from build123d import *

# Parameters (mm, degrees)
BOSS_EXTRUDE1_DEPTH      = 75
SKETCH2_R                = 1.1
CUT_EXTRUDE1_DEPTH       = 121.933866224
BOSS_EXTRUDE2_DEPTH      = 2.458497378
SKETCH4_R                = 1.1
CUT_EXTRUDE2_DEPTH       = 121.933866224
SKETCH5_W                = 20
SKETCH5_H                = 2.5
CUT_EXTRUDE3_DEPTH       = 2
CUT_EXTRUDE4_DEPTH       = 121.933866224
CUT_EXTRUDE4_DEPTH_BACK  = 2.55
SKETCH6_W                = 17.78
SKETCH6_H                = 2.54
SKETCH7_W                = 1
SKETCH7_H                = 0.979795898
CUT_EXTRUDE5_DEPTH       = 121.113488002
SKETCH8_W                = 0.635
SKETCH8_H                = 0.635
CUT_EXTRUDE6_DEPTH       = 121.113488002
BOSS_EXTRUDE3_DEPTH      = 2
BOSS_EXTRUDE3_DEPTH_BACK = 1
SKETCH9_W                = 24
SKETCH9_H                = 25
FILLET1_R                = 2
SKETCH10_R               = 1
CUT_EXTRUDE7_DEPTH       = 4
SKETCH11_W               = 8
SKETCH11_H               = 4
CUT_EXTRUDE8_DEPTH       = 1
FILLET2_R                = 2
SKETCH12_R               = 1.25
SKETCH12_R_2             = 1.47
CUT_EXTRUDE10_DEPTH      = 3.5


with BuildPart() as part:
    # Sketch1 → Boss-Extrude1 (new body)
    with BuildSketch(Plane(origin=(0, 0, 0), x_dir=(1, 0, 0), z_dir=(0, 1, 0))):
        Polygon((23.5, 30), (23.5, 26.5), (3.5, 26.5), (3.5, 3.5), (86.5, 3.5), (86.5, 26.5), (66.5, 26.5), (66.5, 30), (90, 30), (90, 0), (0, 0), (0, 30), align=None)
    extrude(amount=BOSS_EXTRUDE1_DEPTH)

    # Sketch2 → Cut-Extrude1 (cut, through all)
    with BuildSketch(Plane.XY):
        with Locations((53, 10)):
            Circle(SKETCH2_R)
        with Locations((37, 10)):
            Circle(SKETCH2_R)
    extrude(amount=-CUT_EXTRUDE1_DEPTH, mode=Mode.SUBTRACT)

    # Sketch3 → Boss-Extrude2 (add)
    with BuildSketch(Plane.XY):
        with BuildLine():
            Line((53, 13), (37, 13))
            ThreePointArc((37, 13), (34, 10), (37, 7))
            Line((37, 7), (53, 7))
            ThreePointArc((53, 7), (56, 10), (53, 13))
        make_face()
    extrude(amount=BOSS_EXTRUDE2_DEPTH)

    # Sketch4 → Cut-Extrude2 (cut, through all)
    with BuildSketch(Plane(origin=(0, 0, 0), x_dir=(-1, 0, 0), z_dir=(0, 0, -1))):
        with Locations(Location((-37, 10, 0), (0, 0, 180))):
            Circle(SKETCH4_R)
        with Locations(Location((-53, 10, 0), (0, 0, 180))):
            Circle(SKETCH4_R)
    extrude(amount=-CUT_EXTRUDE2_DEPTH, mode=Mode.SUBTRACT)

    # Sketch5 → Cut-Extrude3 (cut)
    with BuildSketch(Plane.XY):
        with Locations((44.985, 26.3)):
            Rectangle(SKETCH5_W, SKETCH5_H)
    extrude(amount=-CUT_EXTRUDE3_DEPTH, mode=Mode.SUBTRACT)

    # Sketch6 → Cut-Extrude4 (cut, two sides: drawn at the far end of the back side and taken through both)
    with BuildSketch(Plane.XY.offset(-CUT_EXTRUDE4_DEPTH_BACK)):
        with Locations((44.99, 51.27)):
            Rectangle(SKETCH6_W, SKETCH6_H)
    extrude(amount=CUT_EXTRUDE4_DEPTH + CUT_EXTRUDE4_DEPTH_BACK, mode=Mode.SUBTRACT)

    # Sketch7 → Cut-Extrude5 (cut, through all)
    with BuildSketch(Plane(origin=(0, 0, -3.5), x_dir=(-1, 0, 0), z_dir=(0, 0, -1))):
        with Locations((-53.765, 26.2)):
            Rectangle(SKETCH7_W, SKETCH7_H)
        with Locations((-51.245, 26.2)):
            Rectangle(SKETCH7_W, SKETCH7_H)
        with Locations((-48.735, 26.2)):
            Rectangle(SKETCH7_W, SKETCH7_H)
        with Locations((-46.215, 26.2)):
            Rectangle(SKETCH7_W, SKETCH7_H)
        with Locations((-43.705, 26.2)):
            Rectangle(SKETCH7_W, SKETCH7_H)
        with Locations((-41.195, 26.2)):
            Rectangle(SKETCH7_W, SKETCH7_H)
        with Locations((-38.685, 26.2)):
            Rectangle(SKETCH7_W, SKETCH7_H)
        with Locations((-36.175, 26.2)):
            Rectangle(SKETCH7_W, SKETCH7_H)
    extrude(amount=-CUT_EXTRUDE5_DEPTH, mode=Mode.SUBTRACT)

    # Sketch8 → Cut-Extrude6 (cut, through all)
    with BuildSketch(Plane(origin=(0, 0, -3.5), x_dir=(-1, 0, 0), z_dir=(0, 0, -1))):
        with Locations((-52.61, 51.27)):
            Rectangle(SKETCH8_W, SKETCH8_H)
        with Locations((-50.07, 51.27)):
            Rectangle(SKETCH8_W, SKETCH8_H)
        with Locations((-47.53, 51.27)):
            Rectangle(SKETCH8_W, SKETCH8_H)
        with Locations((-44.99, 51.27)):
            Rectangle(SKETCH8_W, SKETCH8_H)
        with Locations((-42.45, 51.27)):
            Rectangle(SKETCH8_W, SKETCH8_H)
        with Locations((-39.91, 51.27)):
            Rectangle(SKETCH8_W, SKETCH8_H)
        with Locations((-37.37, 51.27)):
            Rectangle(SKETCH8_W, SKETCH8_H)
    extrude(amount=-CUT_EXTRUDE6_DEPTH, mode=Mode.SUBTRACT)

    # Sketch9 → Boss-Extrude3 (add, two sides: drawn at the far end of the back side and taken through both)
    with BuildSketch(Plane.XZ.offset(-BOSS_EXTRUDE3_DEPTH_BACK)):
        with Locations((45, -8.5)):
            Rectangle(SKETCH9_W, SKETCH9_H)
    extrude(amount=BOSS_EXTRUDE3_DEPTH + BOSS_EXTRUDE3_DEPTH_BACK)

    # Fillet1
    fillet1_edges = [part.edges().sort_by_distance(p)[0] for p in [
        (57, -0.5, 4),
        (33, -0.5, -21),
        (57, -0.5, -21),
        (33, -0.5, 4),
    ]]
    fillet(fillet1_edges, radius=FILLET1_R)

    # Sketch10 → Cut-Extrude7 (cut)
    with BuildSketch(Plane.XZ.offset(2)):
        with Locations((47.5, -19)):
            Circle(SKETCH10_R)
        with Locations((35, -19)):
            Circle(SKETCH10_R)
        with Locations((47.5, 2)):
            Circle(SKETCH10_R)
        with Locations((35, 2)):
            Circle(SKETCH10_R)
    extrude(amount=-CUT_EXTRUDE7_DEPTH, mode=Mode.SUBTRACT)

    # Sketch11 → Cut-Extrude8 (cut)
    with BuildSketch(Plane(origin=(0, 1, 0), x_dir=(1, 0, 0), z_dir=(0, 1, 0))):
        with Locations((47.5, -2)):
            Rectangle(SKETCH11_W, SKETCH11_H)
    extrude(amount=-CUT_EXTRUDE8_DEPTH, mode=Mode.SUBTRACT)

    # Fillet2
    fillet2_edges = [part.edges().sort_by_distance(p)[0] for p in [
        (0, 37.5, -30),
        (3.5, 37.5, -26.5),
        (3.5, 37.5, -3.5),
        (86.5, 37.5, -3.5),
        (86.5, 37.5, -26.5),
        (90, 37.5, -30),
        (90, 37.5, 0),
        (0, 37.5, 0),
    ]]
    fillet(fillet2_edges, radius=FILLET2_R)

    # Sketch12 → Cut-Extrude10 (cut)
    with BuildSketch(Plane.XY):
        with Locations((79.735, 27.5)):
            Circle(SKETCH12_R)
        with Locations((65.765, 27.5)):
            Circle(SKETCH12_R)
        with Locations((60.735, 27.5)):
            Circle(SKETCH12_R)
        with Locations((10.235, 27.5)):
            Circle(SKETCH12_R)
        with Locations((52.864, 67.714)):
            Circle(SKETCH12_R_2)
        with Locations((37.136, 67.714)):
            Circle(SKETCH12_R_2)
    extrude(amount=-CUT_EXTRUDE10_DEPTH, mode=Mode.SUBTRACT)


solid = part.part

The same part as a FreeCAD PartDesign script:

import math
import FreeCAD as App
import Part
import Sketcher
from FreeCAD import Vector
Q = App.Units.Quantity


def edges_at(feature, points):
    """Names of the edges that pass closest to the given points."""
    edges = feature.Shape.Edges
    near = lambda p: min(range(len(edges)), key=lambda i: edges[i].distToShape(Part.Vertex(*p))[0])
    return sorted({f"Edge{near(p) + 1}" for p in points})


def add_polygon(sketch, points):
    """Adds a closed chain of lines whose ends are joined by coincident constraints."""
    first, n = sketch.GeometryCount, len(points)
    for a, b in zip(points, points[1:] + points[:1]):
        sketch.addGeometry(Part.LineSegment(App.Vector(*a, 0), App.Vector(*b, 0)), False)
    for i in range(n):
        sketch.addConstraint(Sketcher.Constraint("Coincident", first + i, 2, first + (i + 1) % n, 1))

doc = App.newDocument("Part")
body = doc.addObject("PartDesign::Body", "Body")

# Sketch on XZ plane
sketch1 = body.newObject("Sketcher::SketchObject", "Sketch")
sketch1.AttachmentSupport = (doc.getObject("XZ_Plane"), [""])
sketch1.MapMode = "FlatFace"
add_polygon(sketch1, [(23.5, -26.5), (23.5, -30), (0, -30), (0, 0), (90, 0), (90, -30), (66.5, -30), (66.5, -26.5), (86.5, -26.5), (86.5, -3.5), (3.5, -3.5), (3.5, -26.5)])  # lines 0-11
sketch1.addConstraint(Sketcher.Constraint("Vertical", 0))
sketch1.addConstraint(Sketcher.Constraint("Horizontal", 1))
sketch1.addConstraint(Sketcher.Constraint("Vertical", 2))
sketch1.addConstraint(Sketcher.Constraint("Horizontal", 3))
sketch1.addConstraint(Sketcher.Constraint("Vertical", 4))
sketch1.addConstraint(Sketcher.Constraint("Horizontal", 5))
sketch1.addConstraint(Sketcher.Constraint("Vertical", 6))
sketch1.addConstraint(Sketcher.Constraint("Horizontal", 7))
sketch1.addConstraint(Sketcher.Constraint("Vertical", 8))
sketch1.addConstraint(Sketcher.Constraint("Horizontal", 9))
sketch1.addConstraint(Sketcher.Constraint("Vertical", 10))
sketch1.addConstraint(Sketcher.Constraint("Horizontal", 11))
sketch1.addConstraint(Sketcher.Constraint("Coincident", 2, 2, -1, 1))
sketch1.addConstraint(Sketcher.Constraint("Horizontal", 1, 2, 4, 2))
sketch1.addConstraint(Sketcher.Constraint("Horizontal", 7, 2, 10, 2))
sketch1.addConstraint(Sketcher.Constraint("Equal", 1, 5))
sketch1.addConstraint(Sketcher.Constraint("Equal", 7, 11))
sketch1.addConstraint(Sketcher.Constraint("DistanceX", 3, 1, 3, 2, Q("90 mm")))
sketch1.addConstraint(Sketcher.Constraint("DistanceX", 7, 1, 7, 2, Q("20 mm")))
sketch1.addConstraint(Sketcher.Constraint("DistanceX", 9, 2, 9, 1, Q("83 mm")))
sketch1.addConstraint(Sketcher.Constraint("DistanceY", 2, 1, 2, 2, Q("30 mm")))
sketch1.addConstraint(Sketcher.Constraint("DistanceY", 8, 1, 8, 2, Q("23 mm")))
sketch1.addConstraint(Sketcher.Constraint("DistanceY", 0, 2, 0, 1, Q("3.5 mm")))
pad1 = body.newObject("PartDesign::Pad", "Pad")
pad1.Profile = sketch1
pad1.Length = 75
pad1.Reversed = True

# Sketch on XY plane
sketch2 = body.newObject("Sketcher::SketchObject", "Sketch001")
sketch2.AttachmentSupport = (doc.getObject("XY_Plane"), [""])
sketch2.MapMode = "FlatFace"
sketch2.addGeometry(Part.Circle(Vector(53, 10, 0), Vector(0, 0, 1), 1.1), False)
sketch2.addGeometry(Part.Circle(Vector(37, 10, 0), Vector(0, 0, 1), 1.1), False)
sketch2.addConstraint(Sketcher.Constraint("Equal", 0, 1))
sketch2.addConstraint(Sketcher.Constraint("Horizontal", 0, 3, 1, 3))
sketch2.addConstraint(Sketcher.Constraint("Diameter", 0, Q("2.2 mm")))
sketch2.addConstraint(Sketcher.Constraint("DistanceX", -1, 1, 0, 3, Q("53 mm")))
sketch2.addConstraint(Sketcher.Constraint("DistanceY", -1, 1, 0, 3, Q("10 mm")))
sketch2.addConstraint(Sketcher.Constraint("DistanceX", -1, 1, 1, 3, Q("37 mm")))
pocket1 = body.newObject("PartDesign::Pocket", "Pocket")
pocket1.Profile = sketch2
pocket1.Type = "ThroughAll"

# Sketch on XY plane
sketch3 = body.newObject("Sketcher::SketchObject", "Sketch002")
sketch3.AttachmentSupport = (doc.getObject("XY_Plane"), [""])
sketch3.MapMode = "FlatFace"
sketch3.addGeometry(Part.LineSegment(Vector(53, 13, 0), Vector(37, 13, 0)), False)
sketch3.addGeometry(Part.ArcOfCircle(Part.Circle(Vector(37, 10, 0), Vector(0, 0, 1), 3), math.radians(90), math.radians(270)), False)
sketch3.addGeometry(Part.LineSegment(Vector(37, 7, 0), Vector(53, 7, 0)), False)
sketch3.addGeometry(Part.ArcOfCircle(Part.Circle(Vector(53, 10, 0), Vector(0, 0, 1), 3), math.radians(-90), math.radians(90)), False)
sketch3.addConstraint(Sketcher.Constraint("Tangent", 0, 2, 1, 1))
sketch3.addConstraint(Sketcher.Constraint("Tangent", 1, 2, 2, 1))
sketch3.addConstraint(Sketcher.Constraint("Tangent", 2, 2, 3, 1))
sketch3.addConstraint(Sketcher.Constraint("Tangent", 3, 2, 0, 1))
sketch3.addConstraint(Sketcher.Constraint("Horizontal", 0))
sketch3.addConstraint(Sketcher.Constraint("Horizontal", 2))
sketch3.addConstraint(Sketcher.Constraint("Radius", 1, Q("3 mm")))
sketch3.addConstraint(Sketcher.Constraint("DistanceX", 0, 2, 0, 1, Q("16 mm")))
sketch3.addConstraint(Sketcher.Constraint("DistanceX", -1, 1, 1, 3, Q("37 mm")))
sketch3.addConstraint(Sketcher.Constraint("DistanceY", -1, 1, 1, 3, Q("10 mm")))
pad2 = body.newObject("PartDesign::Pad", "Pad001")
pad2.Profile = sketch3
pad2.Length = 2.458497

# Sketch on XY plane
sketch4 = body.newObject("Sketcher::SketchObject", "Sketch003")
sketch4.AttachmentSupport = (doc.getObject("XY_Plane"), [""])
sketch4.MapMode = "FlatFace"
sketch4.addGeometry(Part.Circle(Vector(37, 10, 0), Vector(0, 0, 1), 1.1), False)
sketch4.addGeometry(Part.Circle(Vector(53, 10, 0), Vector(0, 0, 1), 1.1), False)
sketch4.addConstraint(Sketcher.Constraint("Equal", 0, 1))
sketch4.addConstraint(Sketcher.Constraint("Horizontal", 0, 3, 1, 3))
sketch4.addConstraint(Sketcher.Constraint("Diameter", 0, Q("2.2 mm")))
sketch4.addConstraint(Sketcher.Constraint("DistanceX", -1, 1, 0, 3, Q("37 mm")))
sketch4.addConstraint(Sketcher.Constraint("DistanceY", -1, 1, 0, 3, Q("10 mm")))
sketch4.addConstraint(Sketcher.Constraint("DistanceX", -1, 1, 1, 3, Q("53 mm")))
pocket2 = body.newObject("PartDesign::Pocket", "Pocket001")
pocket2.Profile = sketch4
pocket2.Type = "ThroughAll"
pocket2.Reversed = True

# Sketch on XY plane
sketch5 = body.newObject("Sketcher::SketchObject", "Sketch004")
sketch5.AttachmentSupport = (doc.getObject("XY_Plane"), [""])
sketch5.MapMode = "FlatFace"
add_polygon(sketch5, [(35, 27.6), (35, 25.1), (55, 25.1), (55, 27.6)])  # lines 0-3
sketch5.addConstraint(Sketcher.Constraint("Vertical", 0))
sketch5.addConstraint(Sketcher.Constraint("Horizontal", 1))
sketch5.addConstraint(Sketcher.Constraint("Vertical", 2))
sketch5.addConstraint(Sketcher.Constraint("Horizontal", 3))
sketch5.addConstraint(Sketcher.Constraint("DistanceX", 1, 1, 1, 2, Q("20 mm")))
sketch5.addConstraint(Sketcher.Constraint("DistanceY", 0, 2, 0, 1, Q("2.5 mm")))
sketch5.addConstraint(Sketcher.Constraint("DistanceY", -1, 1, 0, 2, Q("25.05 mm")))
sketch5.addConstraint(Sketcher.Constraint("DistanceX", -1, 1, 0, 2, Q("34.985 mm")))
pocket3 = body.newObject("PartDesign::Pocket", "Pocket002")
pocket3.Profile = sketch5
pocket3.Length = 2

# Sketch on XY plane
sketch6 = body.newObject("Sketcher::SketchObject", "Sketch005")
sketch6.AttachmentSupport = (doc.getObject("XY_Plane"), [""])
sketch6.MapMode = "FlatFace"
add_polygon(sketch6, [(36.1, 52.5), (36.1, 50), (53.9, 50), (53.9, 52.5)])  # lines 0-3
sketch6.addConstraint(Sketcher.Constraint("Vertical", 0))
sketch6.addConstraint(Sketcher.Constraint("Horizontal", 1))
sketch6.addConstraint(Sketcher.Constraint("Vertical", 2))
sketch6.addConstraint(Sketcher.Constraint("Horizontal", 3))
sketch6.addConstraint(Sketcher.Constraint("DistanceY", -1, 1, 0, 2, Q("50 mm")))
sketch6.addConstraint(Sketcher.Constraint("DistanceX", 1, 1, 1, 2, Q("17.78 mm")))
sketch6.addConstraint(Sketcher.Constraint("DistanceY", 0, 2, 0, 1, Q("2.54 mm")))
sketch6.addConstraint(Sketcher.Constraint("DistanceX", -1, 1, 0, 2, Q("36.1 mm")))
pocket4 = body.newObject("PartDesign::Pocket", "Pocket003")
pocket4.Profile = sketch6
pocket4.Type = "TwoLengths"
pocket4.Length = 121.933866
pocket4.Length2 = 2.55
pocket4.Reversed = True

# Sketch on XY plane
sketch7 = body.newObject("Sketcher::SketchObject", "Sketch006")
sketch7.AttachmentSupport = (doc.getObject("XY_Plane"), [""])
sketch7.MapMode = "FlatFace"
sketch7.AttachmentOffset = App.Placement(Vector(0, 0, -3.5), App.Rotation())
add_polygon(sketch7, [(54.3, 26.7), (54.3, 25.7), (53.3, 25.7), (53.3, 26.7)])  # lines 0-3
add_polygon(sketch7, [(51.7, 26.7), (51.7, 25.7), (50.7, 25.7), (50.7, 26.7)])  # lines 4-7
add_polygon(sketch7, [(49.2, 26.7), (49.2, 25.7), (48.2, 25.7), (48.2, 26.7)])  # lines 8-11
add_polygon(sketch7, [(46.7, 26.7), (46.7, 25.7), (45.7, 25.7), (45.7, 26.7)])  # lines 12-15
add_polygon(sketch7, [(44.2, 26.7), (44.2, 25.7), (43.2, 25.7), (43.2, 26.7)])  # lines 16-19
add_polygon(sketch7, [(41.7, 26.7), (41.7, 25.7), (40.7, 25.7), (40.7, 26.7)])  # lines 20-23
add_polygon(sketch7, [(39.2, 26.7), (39.2, 25.7), (38.2, 25.7), (38.2, 26.7)])  # lines 24-27
add_polygon(sketch7, [(36.7, 26.7), (36.7, 25.7), (35.7, 25.7), (35.7, 26.7)])  # lines 28-31
sketch7.addConstraint(Sketcher.Constraint("Vertical", 0))
sketch7.addConstraint(Sketcher.Constraint("Horizontal", 1))
sketch7.addConstraint(Sketcher.Constraint("Vertical", 2))
sketch7.addConstraint(Sketcher.Constraint("Horizontal", 3))
sketch7.addConstraint(Sketcher.Constraint("Vertical", 4))
sketch7.addConstraint(Sketcher.Constraint("Horizontal", 5))
sketch7.addConstraint(Sketcher.Constraint("Vertical", 6))
sketch7.addConstraint(Sketcher.Constraint("Horizontal", 7))
sketch7.addConstraint(Sketcher.Constraint("Vertical", 8))
sketch7.addConstraint(Sketcher.Constraint("Horizontal", 9))
sketch7.addConstraint(Sketcher.Constraint("Vertical", 10))
sketch7.addConstraint(Sketcher.Constraint("Horizontal", 11))
sketch7.addConstraint(Sketcher.Constraint("Vertical", 12))
sketch7.addConstraint(Sketcher.Constraint("Horizontal", 13))
sketch7.addConstraint(Sketcher.Constraint("Vertical", 14))
sketch7.addConstraint(Sketcher.Constraint("Horizontal", 15))
sketch7.addConstraint(Sketcher.Constraint("Vertical", 16))
sketch7.addConstraint(Sketcher.Constraint("Horizontal", 17))
sketch7.addConstraint(Sketcher.Constraint("Vertical", 18))
sketch7.addConstraint(Sketcher.Constraint("Horizontal", 19))
sketch7.addConstraint(Sketcher.Constraint("Vertical", 20))
sketch7.addConstraint(Sketcher.Constraint("Horizontal", 21))
sketch7.addConstraint(Sketcher.Constraint("Vertical", 22))
sketch7.addConstraint(Sketcher.Constraint("Horizontal", 23))
sketch7.addConstraint(Sketcher.Constraint("Vertical", 24))
sketch7.addConstraint(Sketcher.Constraint("Horizontal", 25))
sketch7.addConstraint(Sketcher.Constraint("Vertical", 26))
sketch7.addConstraint(Sketcher.Constraint("Horizontal", 27))
sketch7.addConstraint(Sketcher.Constraint("Vertical", 28))
sketch7.addConstraint(Sketcher.Constraint("Horizontal", 29))
sketch7.addConstraint(Sketcher.Constraint("Vertical", 30))
sketch7.addConstraint(Sketcher.Constraint("Horizontal", 31))
sketch7.addConstraint(Sketcher.Constraint("Horizontal", 1, 2, 4, 2))
sketch7.addConstraint(Sketcher.Constraint("Horizontal", 3, 2, 6, 2))
sketch7.addConstraint(Sketcher.Constraint("Horizontal", 5, 2, 8, 2))
sketch7.addConstraint(Sketcher.Constraint("Horizontal", 7, 2, 10, 2))
sketch7.addConstraint(Sketcher.Constraint("Horizontal", 9, 2, 12, 2))
sketch7.addConstraint(Sketcher.Constraint("Horizontal", 11, 2, 14, 2))
sketch7.addConstraint(Sketcher.Constraint("Horizontal", 13, 2, 16, 2))
sketch7.addConstraint(Sketcher.Constraint("Horizontal", 15, 2, 18, 2))
sketch7.addConstraint(Sketcher.Constraint("Horizontal", 17, 2, 20, 2))
sketch7.addConstraint(Sketcher.Constraint("Horizontal", 19, 2, 22, 2))
sketch7.addConstraint(Sketcher.Constraint("Horizontal", 21, 2, 24, 2))
sketch7.addConstraint(Sketcher.Constraint("Horizontal", 23, 2, 26, 2))
sketch7.addConstraint(Sketcher.Constraint("Horizontal", 25, 2, 28, 2))
sketch7.addConstraint(Sketcher.Constraint("Horizontal", 27, 2, 30, 2))
sketch7.addConstraint(Sketcher.Constraint("Equal", 3, 5))
sketch7.addConstraint(Sketcher.Constraint("Equal", 7, 9))
sketch7.addConstraint(Sketcher.Constraint("Equal", 11, 13))
sketch7.addConstraint(Sketcher.Constraint("Equal", 15, 17))
sketch7.addConstraint(Sketcher.Constraint("Equal", 19, 21))
sketch7.addConstraint(Sketcher.Constraint("Equal", 23, 25))
sketch7.addConstraint(Sketcher.Constraint("Equal", 27, 29))
sketch7.addConstraint(Sketcher.Constraint("DistanceX", 1, 2, 1, 1, Q("1 mm")))
sketch7.addConstraint(Sketcher.Constraint("DistanceX", 4, 2, 1, 2, Q("1.52 mm")))
sketch7.addConstraint(Sketcher.Constraint("DistanceX", 8, 2, 5, 2, Q("1.51 mm")))
sketch7.addConstraint(Sketcher.Constraint("DistanceX", 12, 2, 9, 2, Q("1.52 mm")))
sketch7.addConstraint(Sketcher.Constraint("DistanceX", 16, 2, 13, 2, Q("1.51 mm")))
sketch7.addConstraint(Sketcher.Constraint("DistanceX", 20, 2, 17, 2, Q("1.51 mm")))
sketch7.addConstraint(Sketcher.Constraint("DistanceX", 24, 2, 21, 2, Q("1.51 mm")))
sketch7.addConstraint(Sketcher.Constraint("DistanceX", 28, 2, 25, 2, Q("1.51 mm")))
sketch7.addConstraint(Sketcher.Constraint("DistanceX", -1, 1, 0, 2, Q("54.265 mm")))
sketch7.addConstraint(Sketcher.Constraint("DistanceY", 0, 2, 0, 1, Q("0.979796 mm")))
sketch7.addConstraint(Sketcher.Constraint("DistanceY", -1, 1, 0, 2, Q("25.710102 mm")))
pocket5 = body.newObject("PartDesign::Pocket", "Pocket004")
pocket5.Profile = sketch7
pocket5.Type = "ThroughAll"
pocket5.Reversed = True

# Sketch on XY plane
sketch8 = body.newObject("Sketcher::SketchObject", "Sketch007")
sketch8.AttachmentSupport = (doc.getObject("XY_Plane"), [""])
sketch8.MapMode = "FlatFace"
sketch8.AttachmentOffset = App.Placement(Vector(0, 0, -3.5), App.Rotation())
add_polygon(sketch8, [(52.9, 51.6), (52.9, 51), (52.3, 51), (52.3, 51.6)])  # lines 0-3
add_polygon(sketch8, [(50.4, 51.6), (50.4, 51), (49.8, 51), (49.8, 51.6)])  # lines 4-7
add_polygon(sketch8, [(47.8, 51.6), (47.8, 51), (47.2, 51), (47.2, 51.6)])  # lines 8-11
add_polygon(sketch8, [(45.3, 51.6), (45.3, 51), (44.7, 51), (44.7, 51.6)])  # lines 12-15
add_polygon(sketch8, [(42.8, 51.6), (42.8, 51), (42.1, 51), (42.1, 51.6)])  # lines 16-19
add_polygon(sketch8, [(40.2, 51.6), (40.2, 51), (39.6, 51), (39.6, 51.6)])  # lines 20-23
add_polygon(sketch8, [(37.7, 51.6), (37.7, 51), (37.1, 51), (37.1, 51.6)])  # lines 24-27
sketch8.addConstraint(Sketcher.Constraint("Vertical", 0))
sketch8.addConstraint(Sketcher.Constraint("Horizontal", 1))
sketch8.addConstraint(Sketcher.Constraint("Vertical", 2))
sketch8.addConstraint(Sketcher.Constraint("Horizontal", 3))
sketch8.addConstraint(Sketcher.Constraint("Vertical", 4))
sketch8.addConstraint(Sketcher.Constraint("Horizontal", 5))
sketch8.addConstraint(Sketcher.Constraint("Vertical", 6))
sketch8.addConstraint(Sketcher.Constraint("Horizontal", 7))
sketch8.addConstraint(Sketcher.Constraint("Vertical", 8))
sketch8.addConstraint(Sketcher.Constraint("Horizontal", 9))
sketch8.addConstraint(Sketcher.Constraint("Vertical", 10))
sketch8.addConstraint(Sketcher.Constraint("Horizontal", 11))
sketch8.addConstraint(Sketcher.Constraint("Vertical", 12))
sketch8.addConstraint(Sketcher.Constraint("Horizontal", 13))
sketch8.addConstraint(Sketcher.Constraint("Vertical", 14))
sketch8.addConstraint(Sketcher.Constraint("Horizontal", 15))
sketch8.addConstraint(Sketcher.Constraint("Vertical", 16))
sketch8.addConstraint(Sketcher.Constraint("Horizontal", 17))
sketch8.addConstraint(Sketcher.Constraint("Vertical", 18))
sketch8.addConstraint(Sketcher.Constraint("Horizontal", 19))
sketch8.addConstraint(Sketcher.Constraint("Vertical", 20))
sketch8.addConstraint(Sketcher.Constraint("Horizontal", 21))
sketch8.addConstraint(Sketcher.Constraint("Vertical", 22))
sketch8.addConstraint(Sketcher.Constraint("Horizontal", 23))
sketch8.addConstraint(Sketcher.Constraint("Vertical", 24))
sketch8.addConstraint(Sketcher.Constraint("Horizontal", 25))
sketch8.addConstraint(Sketcher.Constraint("Vertical", 26))
sketch8.addConstraint(Sketcher.Constraint("Horizontal", 27))
sketch8.addConstraint(Sketcher.Constraint("Horizontal", 1, 2, 4, 2))
sketch8.addConstraint(Sketcher.Constraint("Horizontal", 3, 2, 6, 2))
sketch8.addConstraint(Sketcher.Constraint("Horizontal", 5, 2, 8, 2))
sketch8.addConstraint(Sketcher.Constraint("Horizontal", 7, 2, 10, 2))
sketch8.addConstraint(Sketcher.Constraint("Horizontal", 9, 2, 12, 2))
sketch8.addConstraint(Sketcher.Constraint("Horizontal", 11, 2, 14, 2))
sketch8.addConstraint(Sketcher.Constraint("Horizontal", 13, 2, 16, 2))
sketch8.addConstraint(Sketcher.Constraint("Horizontal", 15, 2, 18, 2))
sketch8.addConstraint(Sketcher.Constraint("Horizontal", 17, 2, 20, 2))
sketch8.addConstraint(Sketcher.Constraint("Horizontal", 19, 2, 22, 2))
sketch8.addConstraint(Sketcher.Constraint("Horizontal", 21, 2, 24, 2))
sketch8.addConstraint(Sketcher.Constraint("Horizontal", 23, 2, 26, 2))
sketch8.addConstraint(Sketcher.Constraint("Equal", 3, 5))
sketch8.addConstraint(Sketcher.Constraint("Equal", 7, 9))
sketch8.addConstraint(Sketcher.Constraint("Equal", 11, 13))
sketch8.addConstraint(Sketcher.Constraint("Equal", 15, 17))
sketch8.addConstraint(Sketcher.Constraint("Equal", 19, 21))
sketch8.addConstraint(Sketcher.Constraint("Equal", 23, 25))
sketch8.addConstraint(Sketcher.Constraint("Equal", 27, 0))
sketch8.addConstraint(Sketcher.Constraint("DistanceX", 1, 2, 1, 1, Q("0.635 mm")))
sketch8.addConstraint(Sketcher.Constraint("DistanceX", 4, 2, 0, 2, Q("2.54 mm")))
sketch8.addConstraint(Sketcher.Constraint("DistanceX", 8, 2, 4, 2, Q("2.54 mm")))
sketch8.addConstraint(Sketcher.Constraint("DistanceX", 12, 2, 8, 2, Q("2.54 mm")))
sketch8.addConstraint(Sketcher.Constraint("DistanceX", 16, 2, 12, 2, Q("2.54 mm")))
sketch8.addConstraint(Sketcher.Constraint("DistanceX", 20, 2, 16, 2, Q("2.54 mm")))
sketch8.addConstraint(Sketcher.Constraint("DistanceX", 24, 2, 20, 2, Q("2.54 mm")))
sketch8.addConstraint(Sketcher.Constraint("DistanceX", -1, 1, 0, 2, Q("52.9275 mm")))
sketch8.addConstraint(Sketcher.Constraint("DistanceY", -1, 1, 0, 2, Q("50.9525 mm")))
pocket6 = body.newObject("PartDesign::Pocket", "Pocket005")
pocket6.Profile = sketch8
pocket6.Type = "ThroughAll"
pocket6.Reversed = True

# Sketch on XZ plane
sketch9 = body.newObject("Sketcher::SketchObject", "Sketch008")
sketch9.AttachmentSupport = (doc.getObject("XZ_Plane"), [""])
sketch9.MapMode = "FlatFace"
add_polygon(sketch9, [(33, 4), (33, -21), (57, -21), (57, 4)])  # lines 0-3
sketch9.addConstraint(Sketcher.Constraint("Vertical", 0))
sketch9.addConstraint(Sketcher.Constraint("Horizontal", 1))
sketch9.addConstraint(Sketcher.Constraint("Vertical", 2))
sketch9.addConstraint(Sketcher.Constraint("Horizontal", 3))
sketch9.addConstraint(Sketcher.Constraint("DistanceX", 1, 1, 1, 2, Q("24 mm")))
sketch9.addConstraint(Sketcher.Constraint("DistanceY", 0, 2, 0, 1, Q("25 mm")))
sketch9.addConstraint(Sketcher.Constraint("DistanceX", -1, 1, 0, 2, Q("33 mm")))
sketch9.addConstraint(Sketcher.Constraint("DistanceY", 0, 2, -1, 1, Q("21 mm")))
pad3 = body.newObject("PartDesign::Pad", "Pad002")
pad3.Profile = sketch9
pad3.Type = "TwoLengths"
pad3.Length = 2
pad3.Length2 = 1
doc.recompute()

fillet = body.newObject("PartDesign::Fillet", "Fillet")
fillet.Base = (pad3, edges_at(pad3, [
    (57, -0.5, 4),
    (33, -0.5, -21),
    (57, -0.5, -21),
    (33, -0.5, 4),
]))
fillet.Radius = 2

# Sketch on XZ plane
sketch10 = body.newObject("Sketcher::SketchObject", "Sketch009")
sketch10.AttachmentSupport = (doc.getObject("XZ_Plane"), [""])
sketch10.MapMode = "FlatFace"
sketch10.AttachmentOffset = App.Placement(Vector(0, 0, 2), App.Rotation())
sketch10.addGeometry(Part.Circle(Vector(47.5, -19, 0), Vector(0, 0, 1), 1), False)
sketch10.addGeometry(Part.Circle(Vector(35, -19, 0), Vector(0, 0, 1), 1), False)
sketch10.addGeometry(Part.Circle(Vector(47.5, 2, 0), Vector(0, 0, 1), 1), False)
sketch10.addGeometry(Part.Circle(Vector(35, 2, 0), Vector(0, 0, 1), 1), False)
sketch10.addConstraint(Sketcher.Constraint("Equal", 0, 1))
sketch10.addConstraint(Sketcher.Constraint("Equal", 1, 2))
sketch10.addConstraint(Sketcher.Constraint("Equal", 2, 3))
sketch10.addConstraint(Sketcher.Constraint("Horizontal", 0, 3, 1, 3))
sketch10.addConstraint(Sketcher.Constraint("Horizontal", 2, 3, 3, 3))
sketch10.addConstraint(Sketcher.Constraint("Vertical", 0, 3, 2, 3))
sketch10.addConstraint(Sketcher.Constraint("Vertical", 1, 3, 3, 3))
sketch10.addConstraint(Sketcher.Constraint("Diameter", 0, Q("2 mm")))
sketch10.addConstraint(Sketcher.Constraint("DistanceY", 0, 3, -1, 1, Q("19 mm")))
sketch10.addConstraint(Sketcher.Constraint("DistanceX", -1, 1, 1, 3, Q("35 mm")))
sketch10.addConstraint(Sketcher.Constraint("DistanceY", -1, 1, 2, 3, Q("2 mm")))
sketch10.addConstraint(Sketcher.Constraint("DistanceX", -1, 1, 0, 3, Q("47.5 mm")))
pocket7 = body.newObject("PartDesign::Pocket", "Pocket006")
pocket7.Profile = sketch10
pocket7.Length = 4

# Sketch on XZ plane
sketch11 = body.newObject("Sketcher::SketchObject", "Sketch010")
sketch11.AttachmentSupport = (doc.getObject("XZ_Plane"), [""])
sketch11.MapMode = "FlatFace"
sketch11.AttachmentOffset = App.Placement(Vector(0, 0, -1), App.Rotation())
add_polygon(sketch11, [(43.5, 0), (43.5, 4), (51.5, 4), (51.5, 0)])  # lines 0-3
sketch11.addConstraint(Sketcher.Constraint("Vertical", 0))
sketch11.addConstraint(Sketcher.Constraint("Horizontal", 1))
sketch11.addConstraint(Sketcher.Constraint("Vertical", 2))
sketch11.addConstraint(Sketcher.Constraint("Horizontal", 3))
sketch11.addConstraint(Sketcher.Constraint("PointOnObject", 2, 2, -1))
sketch11.addConstraint(Sketcher.Constraint("DistanceX", 1, 1, 1, 2, Q("8 mm")))
sketch11.addConstraint(Sketcher.Constraint("DistanceY", 0, 1, 0, 2, Q("4 mm")))
sketch11.addConstraint(Sketcher.Constraint("DistanceX", -1, 1, 0, 2, Q("43.5 mm")))
pocket8 = body.newObject("PartDesign::Pocket", "Pocket007")
pocket8.Profile = sketch11
pocket8.Length = 1
pocket8.Reversed = True
doc.recompute()

fillet2 = body.newObject("PartDesign::Fillet", "Fillet001")
fillet2.Base = (pocket8, edges_at(pocket8, [
    (0, 37.5, -30),
    (3.5, 37.5, -26.5),
    (3.5, 37.5, -3.5),
    (86.5, 37.5, -3.5),
    (86.5, 37.5, -26.5),
    (90, 37.5, -30),
    (90, 37.5, 0),
    (0, 37.5, 0),
]))
fillet2.Radius = 2

# Sketch on XY plane
sketch12 = body.newObject("Sketcher::SketchObject", "Sketch011")
sketch12.AttachmentSupport = (doc.getObject("XY_Plane"), [""])
sketch12.MapMode = "FlatFace"
sketch12.addGeometry(Part.Circle(Vector(79.7, 27.5, 0), Vector(0, 0, 1), 1.2), False)
sketch12.addGeometry(Part.Circle(Vector(65.8, 27.5, 0), Vector(0, 0, 1), 1.2), False)
sketch12.addGeometry(Part.Circle(Vector(60.7, 27.5, 0), Vector(0, 0, 1), 1.2), False)
sketch12.addGeometry(Part.Circle(Vector(10.2, 27.5, 0), Vector(0, 0, 1), 1.2), False)
sketch12.addGeometry(Part.Circle(Vector(52.9, 67.7, 0), Vector(0, 0, 1), 1.5), False)
sketch12.addGeometry(Part.Circle(Vector(37.1, 67.7, 0), Vector(0, 0, 1), 1.5), False)
sketch12.addConstraint(Sketcher.Constraint("Equal", 0, 1))
sketch12.addConstraint(Sketcher.Constraint("Equal", 1, 2))
sketch12.addConstraint(Sketcher.Constraint("Equal", 2, 3))
sketch12.addConstraint(Sketcher.Constraint("Equal", 4, 5))
sketch12.addConstraint(Sketcher.Constraint("Horizontal", 0, 3, 1, 3))
sketch12.addConstraint(Sketcher.Constraint("Horizontal", 1, 3, 2, 3))
sketch12.addConstraint(Sketcher.Constraint("Horizontal", 2, 3, 3, 3))
sketch12.addConstraint(Sketcher.Constraint("Horizontal", 4, 3, 5, 3))
sketch12.addConstraint(Sketcher.Constraint("Diameter", 0, Q("2.5 mm")))
sketch12.addConstraint(Sketcher.Constraint("Diameter", 4, Q("2.94 mm")))
sketch12.addConstraint(Sketcher.Constraint("DistanceX", 2, 3, 0, 3, Q("19 mm")))
sketch12.addConstraint(Sketcher.Constraint("DistanceY", -1, 1, 0, 3, Q("27.5 mm")))
sketch12.addConstraint(Sketcher.Constraint("DistanceX", 3, 3, 2, 3, Q("50.5 mm")))
sketch12.addConstraint(Sketcher.Constraint("DistanceX", 1, 3, 0, 3, Q("13.97 mm")))
sketch12.addConstraint(Sketcher.Constraint("DistanceX", -1, 1, 0, 3, Q("79.735 mm")))
sketch12.addConstraint(Sketcher.Constraint("DistanceX", -1, 1, 4, 3, Q("52.864 mm")))
sketch12.addConstraint(Sketcher.Constraint("DistanceY", -1, 1, 4, 3, Q("67.714 mm")))
sketch12.addConstraint(Sketcher.Constraint("DistanceX", -1, 1, 5, 3, Q("37.136 mm")))
pocket9 = body.newObject("PartDesign::Pocket", "Pocket008")
pocket9.Profile = sketch12
pocket9.Length = 3.5

doc.recompute()
